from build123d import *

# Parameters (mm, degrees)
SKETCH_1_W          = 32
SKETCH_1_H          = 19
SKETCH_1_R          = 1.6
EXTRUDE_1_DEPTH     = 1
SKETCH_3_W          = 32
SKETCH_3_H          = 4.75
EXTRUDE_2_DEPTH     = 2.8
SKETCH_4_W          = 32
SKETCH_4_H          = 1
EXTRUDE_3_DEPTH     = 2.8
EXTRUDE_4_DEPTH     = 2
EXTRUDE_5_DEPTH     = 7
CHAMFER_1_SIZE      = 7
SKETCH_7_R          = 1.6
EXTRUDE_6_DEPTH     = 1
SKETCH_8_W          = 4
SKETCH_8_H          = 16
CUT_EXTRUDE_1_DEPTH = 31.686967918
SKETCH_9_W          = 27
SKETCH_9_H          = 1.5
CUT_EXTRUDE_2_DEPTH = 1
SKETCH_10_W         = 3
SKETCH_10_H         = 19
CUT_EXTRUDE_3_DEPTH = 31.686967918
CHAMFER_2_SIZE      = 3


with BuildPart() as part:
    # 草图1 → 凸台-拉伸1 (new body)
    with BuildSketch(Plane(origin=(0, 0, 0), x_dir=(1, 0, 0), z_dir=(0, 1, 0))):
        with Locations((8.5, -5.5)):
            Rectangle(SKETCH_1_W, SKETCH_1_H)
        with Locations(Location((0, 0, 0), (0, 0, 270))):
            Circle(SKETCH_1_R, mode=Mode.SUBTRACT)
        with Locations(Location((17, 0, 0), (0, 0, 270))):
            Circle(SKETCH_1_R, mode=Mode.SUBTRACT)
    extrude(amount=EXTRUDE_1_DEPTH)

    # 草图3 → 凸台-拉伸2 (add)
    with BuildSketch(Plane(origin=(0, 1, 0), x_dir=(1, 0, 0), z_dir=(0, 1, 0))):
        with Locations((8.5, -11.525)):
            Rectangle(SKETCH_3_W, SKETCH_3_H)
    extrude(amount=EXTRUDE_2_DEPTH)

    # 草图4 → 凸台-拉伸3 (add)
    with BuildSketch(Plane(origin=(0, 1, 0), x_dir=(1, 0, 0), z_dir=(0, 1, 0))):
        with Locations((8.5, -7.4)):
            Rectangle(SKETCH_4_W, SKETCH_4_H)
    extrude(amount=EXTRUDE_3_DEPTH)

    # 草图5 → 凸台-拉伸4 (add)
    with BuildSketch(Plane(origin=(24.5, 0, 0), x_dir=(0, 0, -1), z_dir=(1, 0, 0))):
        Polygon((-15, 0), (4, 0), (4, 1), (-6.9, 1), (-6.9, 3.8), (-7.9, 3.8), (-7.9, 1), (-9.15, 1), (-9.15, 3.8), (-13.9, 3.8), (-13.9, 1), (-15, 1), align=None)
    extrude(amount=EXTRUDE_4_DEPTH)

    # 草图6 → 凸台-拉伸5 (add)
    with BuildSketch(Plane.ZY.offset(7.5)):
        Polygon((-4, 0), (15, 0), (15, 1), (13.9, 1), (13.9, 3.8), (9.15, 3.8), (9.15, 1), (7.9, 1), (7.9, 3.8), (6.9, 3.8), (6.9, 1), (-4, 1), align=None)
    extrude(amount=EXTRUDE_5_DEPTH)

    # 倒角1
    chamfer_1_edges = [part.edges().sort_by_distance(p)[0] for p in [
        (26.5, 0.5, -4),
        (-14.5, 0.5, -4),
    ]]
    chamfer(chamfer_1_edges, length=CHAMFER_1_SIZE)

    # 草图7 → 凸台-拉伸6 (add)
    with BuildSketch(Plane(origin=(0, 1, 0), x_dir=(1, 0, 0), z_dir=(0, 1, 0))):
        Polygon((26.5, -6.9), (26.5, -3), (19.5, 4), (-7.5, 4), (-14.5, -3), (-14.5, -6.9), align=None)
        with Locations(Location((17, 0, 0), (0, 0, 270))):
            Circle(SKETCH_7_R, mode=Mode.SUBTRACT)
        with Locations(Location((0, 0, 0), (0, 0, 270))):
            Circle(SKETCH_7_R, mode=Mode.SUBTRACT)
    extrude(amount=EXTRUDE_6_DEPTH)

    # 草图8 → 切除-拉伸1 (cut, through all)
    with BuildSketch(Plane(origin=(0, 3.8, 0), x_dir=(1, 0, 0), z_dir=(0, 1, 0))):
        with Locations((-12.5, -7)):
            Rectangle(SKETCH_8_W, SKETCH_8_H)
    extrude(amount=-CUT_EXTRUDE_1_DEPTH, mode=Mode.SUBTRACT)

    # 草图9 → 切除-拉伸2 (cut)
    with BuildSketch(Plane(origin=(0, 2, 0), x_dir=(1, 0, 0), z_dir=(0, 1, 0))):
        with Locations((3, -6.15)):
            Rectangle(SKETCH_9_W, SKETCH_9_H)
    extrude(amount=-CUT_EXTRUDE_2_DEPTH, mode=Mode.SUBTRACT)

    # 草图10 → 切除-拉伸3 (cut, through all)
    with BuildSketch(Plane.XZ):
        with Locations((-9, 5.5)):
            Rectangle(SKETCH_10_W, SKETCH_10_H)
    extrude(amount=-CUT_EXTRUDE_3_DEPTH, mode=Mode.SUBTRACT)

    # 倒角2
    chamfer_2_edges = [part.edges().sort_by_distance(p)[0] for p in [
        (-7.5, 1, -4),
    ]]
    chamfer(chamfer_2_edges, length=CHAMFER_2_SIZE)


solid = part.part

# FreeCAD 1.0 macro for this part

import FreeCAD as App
import Part
import Sketcher

V = App.Vector
Q = App.Units.Quantity


def edges_at(feature, points):
    """Names of the edges that pass closest to the given points."""
    edges = feature.Shape.Edges
    near = lambda p: min(range(len(edges)), key=lambda i: edges[i].distToShape(Part.Vertex(*p))[0])
    return sorted({f"Edge{near(p) + 1}" for p in points})

doc = App.newDocument("Part")
body = doc.addObject("PartDesign::Body", "Body")

# Sketch on XZ plane
sketch1 = body.newObject("Sketcher::SketchObject", "Sketch")
sketch1.AttachmentSupport = (doc.getObject("XZ_Plane"), [""])
sketch1.MapMode = "FlatFace"
sketch1.addGeometry([
    Part.LineSegment(V(-7.5, -4, 0), V(-7.5, 15, 0)),  # 0
    Part.LineSegment(V(-7.5, 15, 0), V(24.5, 15, 0)),  # 1
    Part.LineSegment(V(24.5, 15, 0), V(24.5, -4, 0)),  # 2
    Part.LineSegment(V(24.5, -4, 0), V(-7.5, -4, 0)),  # 3
    Part.Circle(V(0, 0, 0), V(0, 0, 1), 1.6),  # 4
    Part.Circle(V(17, 0, 0), V(0, 0, 1), 1.6),  # 5
], False)
sketch1.addConstraint([
    Sketcher.Constraint("Coincident", 0, 2, 1, 1),
    Sketcher.Constraint("Coincident", 1, 2, 2, 1),
    Sketcher.Constraint("Coincident", 2, 2, 3, 1),
    Sketcher.Constraint("Coincident", 3, 2, 0, 1),
    Sketcher.Constraint("Vertical", 0),
    Sketcher.Constraint("Horizontal", 1),
    Sketcher.Constraint("Vertical", 2),
    Sketcher.Constraint("Horizontal", 3),
    Sketcher.Constraint("Coincident", 4, 3, -1, 1),
    Sketcher.Constraint("Equal", 4, 5),
    Sketcher.Constraint("PointOnObject", 5, 3, -1),
    Sketcher.Constraint("Diameter", 4, Q("3.2 mm")),
    Sketcher.Constraint("DistanceX", 1, 1, 1, 2, Q("32 mm")),
    Sketcher.Constraint("DistanceY", 0, 1, 0, 2, Q("19 mm")),
    Sketcher.Constraint("DistanceX", -1, 1, 5, 3, Q("17 mm")),
    Sketcher.Constraint("DistanceY", -1, 1, 0, 2, Q("15 mm")),
    Sketcher.Constraint("DistanceX", 0, 2, -1, 1, Q("7.5 mm")),
])
pad1 = body.newObject("PartDesign::Pad", "Pad")
pad1.Profile = sketch1
pad1.Length = 1
pad1.Reversed = True

# Sketch on XZ plane
sketch2 = body.newObject("Sketcher::SketchObject", "Sketch001")
sketch2.AttachmentSupport = (doc.getObject("XZ_Plane"), [""])
sketch2.MapMode = "FlatFace"
sketch2.AttachmentOffset = App.Placement(V(0, 0, -1), App.Rotation())
sketch2.addGeometry([
    Part.LineSegment(V(-7.5, 9.15, 0), V(-7.5, 13.9, 0)),
    Part.LineSegment(V(-7.5, 13.9, 0), V(24.5, 13.9, 0)),
    Part.LineSegment(V(24.5, 13.9, 0), V(24.5, 9.15, 0)),
    Part.LineSegment(V(24.5, 9.15, 0), V(-7.5, 9.15, 0)),
], False)
sketch2.addConstraint([
    Sketcher.Constraint("Coincident", 0, 2, 1, 1),
    Sketcher.Constraint("Coincident", 1, 2, 2, 1),
    Sketcher.Constraint("Coincident", 2, 2, 3, 1),
    Sketcher.Constraint("Coincident", 3, 2, 0, 1),
    Sketcher.Constraint("Vertical", 0),
    Sketcher.Constraint("Horizontal", 1),
    Sketcher.Constraint("Vertical", 2),
    Sketcher.Constraint("Horizontal", 3),
    Sketcher.Constraint("DistanceX", 1, 1, 1, 2, Q("32 mm")),
    Sketcher.Constraint("DistanceY", 0, 1, 0, 2, Q("4.75 mm")),
    Sketcher.Constraint("DistanceX", 0, 2, -1, 1, Q("7.5 mm")),
    Sketcher.Constraint("DistanceY", -1, 1, 0, 2, Q("13.9 mm")),
])
pad2 = body.newObject("PartDesign::Pad", "Pad001")
pad2.Profile = sketch2
pad2.Length = 2.8
pad2.Reversed = True

# Sketch on XZ plane
sketch3 = body.newObject("Sketcher::SketchObject", "Sketch002")
sketch3.AttachmentSupport = (doc.getObject("XZ_Plane"), [""])
sketch3.MapMode = "FlatFace"
sketch3.AttachmentOffset = App.Placement(V(0, 0, -1), App.Rotation())
sketch3.addGeometry([
    Part.LineSegment(V(-7.5, 6.9, 0), V(-7.5, 7.9, 0)),
    Part.LineSegment(V(-7.5, 7.9, 0), V(24.5, 7.9, 0)),
    Part.LineSegment(V(24.5, 7.9, 0), V(24.5, 6.9, 0)),
    Part.LineSegment(V(24.5, 6.9, 0), V(-7.5, 6.9, 0)),
], False)
sketch3.addConstraint([
    Sketcher.Constraint("Coincident", 0, 2, 1, 1),
    Sketcher.Constraint("Coincident", 1, 2, 2, 1),
    Sketcher.Constraint("Coincident", 2, 2, 3, 1),
    Sketcher.Constraint("Coincident", 3, 2, 0, 1),
    Sketcher.Constraint("Vertical", 0),
    Sketcher.Constraint("Horizontal", 1),
    Sketcher.Constraint("Vertical", 2),
    Sketcher.Constraint("Horizontal", 3),
    Sketcher.Constraint("DistanceX", 1, 1, 1, 2, Q("32 mm")),
    Sketcher.Constraint("DistanceY", 0, 1, 0, 2, Q("1 mm")),
    Sketcher.Constraint("DistanceX", 0, 2, -1, 1, Q("7.5 mm")),
    Sketcher.Constraint("DistanceY", -1, 1, 0, 2, Q("7.9 mm")),
])
pad3 = body.newObject("PartDesign::Pad", "Pad002")
pad3.Profile = sketch3
pad3.Length = 2.8
pad3.Reversed = True

# Sketch on YZ plane
sketch4 = body.newObject("Sketcher::SketchObject", "Sketch003")
sketch4.AttachmentSupport = (doc.getObject("YZ_Plane"), [""])
sketch4.MapMode = "FlatFace"
sketch4.AttachmentOffset = App.Placement(V(0, 0, 24.5), App.Rotation())
sketch4.addGeometry([
    Part.LineSegment(V(0, 15, 0), V(0, -4, 0)),  # 0
    Part.LineSegment(V(0, -4, 0), V(1, -4, 0)),  # 1
    Part.LineSegment(V(1, -4, 0), V(1, 6.9, 0)),  # 2
    Part.LineSegment(V(1, 6.9, 0), V(3.8, 6.9, 0)),  # 3
    Part.LineSegment(V(3.8, 6.9, 0), V(3.8, 7.9, 0)),  # 4
    Part.LineSegment(V(3.8, 7.9, 0), V(1, 7.9, 0)),  # 5
    Part.LineSegment(V(1, 7.9, 0), V(1, 9.15, 0)),  # 6
    Part.LineSegment(V(1, 9.15, 0), V(3.8, 9.15, 0)),  # 7
    Part.LineSegment(V(3.8, 9.15, 0), V(3.8, 13.9, 0)),  # 8
    Part.LineSegment(V(3.8, 13.9, 0), V(1, 13.9, 0)),  # 9
    Part.LineSegment(V(1, 13.9, 0), V(1, 15, 0)),  # 10
    Part.LineSegment(V(1, 15, 0), V(0, 15, 0)),  # 11
], False)
sketch4.addConstraint([
    Sketcher.Constraint("Coincident", 0, 2, 1, 1),
    Sketcher.Constraint("Coincident", 1, 2, 2, 1),
    Sketcher.Constraint("Coincident", 2, 2, 3, 1),
    Sketcher.Constraint("Coincident", 3, 2, 4, 1),
    Sketcher.Constraint("Coincident", 4, 2, 5, 1),
    Sketcher.Constraint("Coincident", 5, 2, 6, 1),
    Sketcher.Constraint("Coincident", 6, 2, 7, 1),
    Sketcher.Constraint("Coincident", 7, 2, 8, 1),
    Sketcher.Constraint("Coincident", 8, 2, 9, 1),
    Sketcher.Constraint("Coincident", 9, 2, 10, 1),
    Sketcher.Constraint("Coincident", 10, 2, 11, 1),
    Sketcher.Constraint("Coincident", 11, 2, 0, 1),
    Sketcher.Constraint("Vertical", 0),
    Sketcher.Constraint("Horizontal", 1),
    Sketcher.Constraint("Vertical", 2),
    Sketcher.Constraint("Horizontal", 3),
    Sketcher.Constraint("Vertical", 4),
    Sketcher.Constraint("Horizontal", 5),
    Sketcher.Constraint("Vertical", 6),
    Sketcher.Constraint("Horizontal", 7),
    Sketcher.Constraint("Vertical", 8),
    Sketcher.Constraint("Horizontal", 9),
    Sketcher.Constraint("Vertical", 10),
    Sketcher.Constraint("Horizontal", 11),
    Sketcher.Constraint("PointOnObject", 0, 2, -2),
    Sketcher.Constraint("Vertical", 2, 2, 5, 2),
    Sketcher.Constraint("Vertical", 4, 2, 7, 2),
    Sketcher.Constraint("Vertical", 6, 2, 9, 2),
    Sketcher.Constraint("Equal", 11, 4),
    Sketcher.Constraint("DistanceX", 1, 1, 1, 2, Q("1 mm")),
    Sketcher.Constraint("DistanceY", 0, 2, 0, 1, Q("19 mm")),
    Sketcher.Constraint("DistanceX", 3, 1, 3, 2, Q("2.8 mm")),
    Sketcher.Constraint("DistanceY", 2, 1, 2, 2, Q("10.9 mm")),
    Sketcher.Constraint("DistanceY", 10, 1, 10, 2, Q("1.1 mm")),
    Sketcher.Constraint("DistanceY", 0, 2, -1, 1, Q("4 mm")),
    Sketcher.Constraint("DistanceY", 6, 1, 6, 2, Q("1.25 mm")),
])
pad4 = body.newObject("PartDesign::Pad", "Pad003")
pad4.Profile = sketch4
pad4.Length = 2

# Sketch on YZ plane
sketch5 = body.newObject("Sketcher::SketchObject", "Sketch004")
sketch5.AttachmentSupport = (doc.getObject("YZ_Plane"), [""])
sketch5.MapMode = "FlatFace"
sketch5.AttachmentOffset = App.Placement(V(0, 0, -7.5), App.Rotation())
sketch5.addGeometry([
    Part.LineSegment(V(0, -4, 0), V(0, 15, 0)),  # 0
    Part.LineSegment(V(0, 15, 0), V(1, 15, 0)),  # 1
    Part.LineSegment(V(1, 15, 0), V(1, 13.9, 0)),  # 2
    Part.LineSegment(V(1, 13.9, 0), V(3.8, 13.9, 0)),  # 3
    Part.LineSegment(V(3.8, 13.9, 0), V(3.8, 9.15, 0)),  # 4
    Part.LineSegment(V(3.8, 9.15, 0), V(1, 9.15, 0)),  # 5
    Part.LineSegment(V(1, 9.15, 0), V(1, 7.9, 0)),  # 6
    Part.LineSegment(V(1, 7.9, 0), V(3.8, 7.9, 0)),  # 7
    Part.LineSegment(V(3.8, 7.9, 0), V(3.8, 6.9, 0)),  # 8
    Part.LineSegment(V(3.8, 6.9, 0), V(1, 6.9, 0)),  # 9
    Part.LineSegment(V(1, 6.9, 0), V(1, -4, 0)),  # 10
    Part.LineSegment(V(1, -4, 0), V(0, -4, 0)),  # 11
], False)
sketch5.addConstraint([
    Sketcher.Constraint("Coincident", 0, 2, 1, 1),
    Sketcher.Constraint("Coincident", 1, 2, 2, 1),
    Sketcher.Constraint("Coincident", 2, 2, 3, 1),
    Sketcher.Constraint("Coincident", 3, 2, 4, 1),
    Sketcher.Constraint("Coincident", 4, 2, 5, 1),
    Sketcher.Constraint("Coincident", 5, 2, 6, 1),
    Sketcher.Constraint("Coincident", 6, 2, 7, 1),
    Sketcher.Constraint("Coincident", 7, 2, 8, 1),
    Sketcher.Constraint("Coincident", 8, 2, 9, 1),
    Sketcher.Constraint("Coincident", 9, 2, 10, 1),
    Sketcher.Constraint("Coincident", 10, 2, 11, 1),
    Sketcher.Constraint("Coincident", 11, 2, 0, 1),
    Sketcher.Constraint("Vertical", 0),
    Sketcher.Constraint("Horizontal", 1),
    Sketcher.Constraint("Vertical", 2),
    Sketcher.Constraint("Horizontal", 3),
    Sketcher.Constraint("Vertical", 4),
    Sketcher.Constraint("Horizontal", 5),
    Sketcher.Constraint("Vertical", 6),
    Sketcher.Constraint("Horizontal", 7),
    Sketcher.Constraint("Vertical", 8),
    Sketcher.Constraint("Horizontal", 9),
    Sketcher.Constraint("Vertical", 10),
    Sketcher.Constraint("Horizontal", 11),
    Sketcher.Constraint("PointOnObject", 0, 2, -2),
    Sketcher.Constraint("Vertical", 2, 2, 5, 2),
    Sketcher.Constraint("Vertical", 4, 2, 7, 2),
    Sketcher.Constraint("Vertical", 6, 2, 9, 2),
    Sketcher.Constraint("Equal", 11, 8),
    Sketcher.Constraint("DistanceX", 1, 1, 1, 2, Q("1 mm")),
    Sketcher.Constraint("DistanceY", 0, 1, 0, 2, Q("19 mm")),
    Sketcher.Constraint("DistanceX", 3, 1, 3, 2, Q("2.8 mm")),
    Sketcher.Constraint("DistanceY", 2, 2, 2, 1, Q("1.1 mm")),
    Sketcher.Constraint("DistanceY", 10, 2, 10, 1, Q("10.9 mm")),
    Sketcher.Constraint("DistanceY", -1, 1, 0, 2, Q("15 mm")),
    Sketcher.Constraint("DistanceY", 4, 2, 4, 1, Q("4.75 mm")),
])
pad5 = body.newObject("PartDesign::Pad", "Pad004")
pad5.Profile = sketch5
pad5.Length = 7
pad5.Reversed = True
doc.recompute()

chamfer = body.newObject("PartDesign::Chamfer", "Chamfer")
chamfer.Base = (pad5, edges_at(pad5, [(26.5, 0.5, -4), (-14.5, 0.5, -4)]))
chamfer.Size = 7

# Sketch on XZ plane
sketch6 = body.newObject("Sketcher::SketchObject", "Sketch005")
sketch6.AttachmentSupport = (doc.getObject("XZ_Plane"), [""])
sketch6.MapMode = "FlatFace"
sketch6.AttachmentOffset = App.Placement(V(0, 0, -1), App.Rotation())
sketch6.addGeometry([
    Part.LineSegment(V(26.5, 6.9, 0), V(26.5, 3, 0)),  # 0
    Part.LineSegment(V(26.5, 3, 0), V(19.5, -4, 0)),  # 1
    Part.LineSegment(V(19.5, -4, 0), V(-7.5, -4, 0)),  # 2
    Part.LineSegment(V(-7.5, -4, 0), V(-14.5, 3, 0)),  # 3
    Part.LineSegment(V(-14.5, 3, 0), V(-14.5, 6.9, 0)),  # 4
    Part.LineSegment(V(-14.5, 6.9, 0), V(26.5, 6.9, 0)),  # 5
    Part.Circle(V(0, 0, 0), V(0, 0, 1), 1.6),  # 6
    Part.Circle(V(17, 0, 0), V(0, 0, 1), 1.6),  # 7
], False)
sketch6.addConstraint([
    Sketcher.Constraint("Coincident", 0, 2, 1, 1),
    Sketcher.Constraint("Coincident", 1, 2, 2, 1),
    Sketcher.Constraint("Coincident", 2, 2, 3, 1),
    Sketcher.Constraint("Coincident", 3, 2, 4, 1),
    Sketcher.Constraint("Coincident", 4, 2, 5, 1),
    Sketcher.Constraint("Coincident", 5, 2, 0, 1),
    Sketcher.Constraint("Vertical", 0),
    Sketcher.Constraint("Horizontal", 2),
    Sketcher.Constraint("Vertical", 4),
    Sketcher.Constraint("Horizontal", 5),
    Sketcher.Constraint("Coincident", 6, 3, -1, 1),
    Sketcher.Constraint("Equal", 6, 7),
    Sketcher.Constraint("PointOnObject", 7, 3, -1),
    Sketcher.Constraint("Perpendicular", 1, 3),
    Sketcher.Constraint("Horizontal", 0, 2, 3, 2),
    Sketcher.Constraint("Equal", 1, 3),
    Sketcher.Constraint("Diameter", 6, Q("3.2 mm")),
    Sketcher.Constraint("DistanceX", 2, 2, 2, 1, Q("27 mm")),
    Sketcher.Constraint("DistanceX", 5, 1, 5, 2, Q("41 mm")),
    Sketcher.Constraint("DistanceY", 0, 2, 0, 1, Q("3.9 mm")),
    Sketcher.Constraint("DistanceX", -1, 1, 7, 3, Q("17 mm")),
    Sketcher.Constraint("DistanceY", -1, 1, 0, 2, Q("3 mm")),
    Sketcher.Constraint("DistanceX", -1, 1, 0, 2, Q("26.5 mm")),
])
pad6 = body.newObject("PartDesign::Pad", "Pad005")
pad6.Profile = sketch6
pad6.Length = 1
pad6.Reversed = True

# Sketch on XZ plane
sketch7 = body.newObject("Sketcher::SketchObject", "Sketch006")
sketch7.AttachmentSupport = (doc.getObject("XZ_Plane"), [""])
sketch7.MapMode = "FlatFace"
sketch7.AttachmentOffset = App.Placement(V(0, 0, -3.8), App.Rotation())
sketch7.addGeometry([
    Part.LineSegment(V(-14.5, -1, 0), V(-14.5, 15, 0)),
    Part.LineSegment(V(-14.5, 15, 0), V(-10.5, 15, 0)),
    Part.LineSegment(V(-10.5, 15, 0), V(-10.5, -1, 0)),
    Part.LineSegment(V(-10.5, -1, 0), V(-14.5, -1, 0)),
], False)
sketch7.addConstraint([
    Sketcher.Constraint("Coincident", 0, 2, 1, 1),
    Sketcher.Constraint("Coincident", 1, 2, 2, 1),
    Sketcher.Constraint("Coincident", 2, 2, 3, 1),
    Sketcher.Constraint("Coincident", 3, 2, 0, 1),
    Sketcher.Constraint("Vertical", 0),
    Sketcher.Constraint("Horizontal", 1),
    Sketcher.Constraint("Vertical", 2),
    Sketcher.Constraint("Horizontal", 3),
    Sketcher.Constraint("DistanceX", 1, 1, 1, 2, Q("4 mm")),
    Sketcher.Constraint("DistanceY", 0, 1, 0, 2, Q("16 mm")),
    Sketcher.Constraint("DistanceY", -1, 1, 0, 2, Q("15 mm")),
    Sketcher.Constraint("DistanceX", 0, 2, -1, 1, Q("14.5 mm")),
])
pocket1 = body.newObject("PartDesign::Pocket", "Pocket")
pocket1.Profile = sketch7
pocket1.Type = "ThroughAll"
pocket1.Reversed = True

# Sketch on XZ plane
sketch8 = body.newObject("Sketcher::SketchObject", "Sketch007")
sketch8.AttachmentSupport = (doc.getObject("XZ_Plane"), [""])
sketch8.MapMode = "FlatFace"
sketch8.AttachmentOffset = App.Placement(V(0, 0, -2), App.Rotation())
sketch8.addGeometry([
    Part.LineSegment(V(-10.5, 5.4, 0), V(-10.5, 6.9, 0)),
    Part.LineSegment(V(-10.5, 6.9, 0), V(16.5, 6.9, 0)),
    Part.LineSegment(V(16.5, 6.9, 0), V(16.5, 5.4, 0)),
    Part.LineSegment(V(16.5, 5.4, 0), V(-10.5, 5.4, 0)),
], False)
sketch8.addConstraint([
    Sketcher.Constraint("Coincident", 0, 2, 1, 1),
    Sketcher.Constraint("Coincident", 1, 2, 2, 1),
    Sketcher.Constraint("Coincident", 2, 2, 3, 1),
    Sketcher.Constraint("Coincident", 3, 2, 0, 1),
    Sketcher.Constraint("Vertical", 0),
    Sketcher.Constraint("Horizontal", 1),
    Sketcher.Constraint("Vertical", 2),
    Sketcher.Constraint("Horizontal", 3),
    Sketcher.Constraint("DistanceX", 1, 1, 1, 2, Q("27 mm")),
    Sketcher.Constraint("DistanceY", 0, 1, 0, 2, Q("1.5 mm")),
    Sketcher.Constraint("DistanceX", 0, 2, -1, 1, Q("10.5 mm")),
    Sketcher.Constraint("DistanceY", -1, 1, 0, 2, Q("6.9 mm")),
])
pocket2 = body.newObject("PartDesign::Pocket", "Pocket001")
pocket2.Profile = sketch8
pocket2.Length = 1
pocket2.Reversed = True

# Sketch on XZ plane
sketch9 = body.newObject("Sketcher::SketchObject", "Sketch008")
sketch9.AttachmentSupport = (doc.getObject("XZ_Plane"), [""])
sketch9.MapMode = "FlatFace"
sketch9.addGeometry([
    Part.LineSegment(V(-10.5, 15, 0), V(-10.5, -4, 0)),
    Part.LineSegment(V(-10.5, -4, 0), V(-7.5, -4, 0)),
    Part.LineSegment(V(-7.5, -4, 0), V(-7.5, 15, 0)),
    Part.LineSegment(V(-7.5, 15, 0), V(-10.5, 15, 0)),
], False)
sketch9.addConstraint([
    Sketcher.Constraint("Coincident", 0, 2, 1, 1),
    Sketcher.Constraint("Coincident", 1, 2, 2, 1),
    Sketcher.Constraint("Coincident", 2, 2, 3, 1),
    Sketcher.Constraint("Coincident", 3, 2, 0, 1),
    Sketcher.Constraint("Vertical", 0),
    Sketcher.Constraint("Horizontal", 1),
    Sketcher.Constraint("Vertical", 2),
    Sketcher.Constraint("Horizontal", 3),
    Sketcher.Constraint("DistanceX", 1, 1, 1, 2, Q("3 mm")),
    Sketcher.Constraint("DistanceY", 0, 2, 0, 1, Q("19 mm")),
    Sketcher.Constraint("DistanceY", 0, 2, -1, 1, Q("4 mm")),
    Sketcher.Constraint("DistanceX", 0, 2, -1, 1, Q("10.5 mm")),
])
pocket3 = body.newObject("PartDesign::Pocket", "Pocket002")
pocket3.Profile = sketch9
pocket3.Type = "ThroughAll"
doc.recompute()

chamfer2 = body.newObject("PartDesign::Chamfer", "Chamfer001")
chamfer2.Base = (pocket3, edges_at(pocket3, [(-7.5, 1, -4)]))
chamfer2.Size = 3

doc.recompute()
